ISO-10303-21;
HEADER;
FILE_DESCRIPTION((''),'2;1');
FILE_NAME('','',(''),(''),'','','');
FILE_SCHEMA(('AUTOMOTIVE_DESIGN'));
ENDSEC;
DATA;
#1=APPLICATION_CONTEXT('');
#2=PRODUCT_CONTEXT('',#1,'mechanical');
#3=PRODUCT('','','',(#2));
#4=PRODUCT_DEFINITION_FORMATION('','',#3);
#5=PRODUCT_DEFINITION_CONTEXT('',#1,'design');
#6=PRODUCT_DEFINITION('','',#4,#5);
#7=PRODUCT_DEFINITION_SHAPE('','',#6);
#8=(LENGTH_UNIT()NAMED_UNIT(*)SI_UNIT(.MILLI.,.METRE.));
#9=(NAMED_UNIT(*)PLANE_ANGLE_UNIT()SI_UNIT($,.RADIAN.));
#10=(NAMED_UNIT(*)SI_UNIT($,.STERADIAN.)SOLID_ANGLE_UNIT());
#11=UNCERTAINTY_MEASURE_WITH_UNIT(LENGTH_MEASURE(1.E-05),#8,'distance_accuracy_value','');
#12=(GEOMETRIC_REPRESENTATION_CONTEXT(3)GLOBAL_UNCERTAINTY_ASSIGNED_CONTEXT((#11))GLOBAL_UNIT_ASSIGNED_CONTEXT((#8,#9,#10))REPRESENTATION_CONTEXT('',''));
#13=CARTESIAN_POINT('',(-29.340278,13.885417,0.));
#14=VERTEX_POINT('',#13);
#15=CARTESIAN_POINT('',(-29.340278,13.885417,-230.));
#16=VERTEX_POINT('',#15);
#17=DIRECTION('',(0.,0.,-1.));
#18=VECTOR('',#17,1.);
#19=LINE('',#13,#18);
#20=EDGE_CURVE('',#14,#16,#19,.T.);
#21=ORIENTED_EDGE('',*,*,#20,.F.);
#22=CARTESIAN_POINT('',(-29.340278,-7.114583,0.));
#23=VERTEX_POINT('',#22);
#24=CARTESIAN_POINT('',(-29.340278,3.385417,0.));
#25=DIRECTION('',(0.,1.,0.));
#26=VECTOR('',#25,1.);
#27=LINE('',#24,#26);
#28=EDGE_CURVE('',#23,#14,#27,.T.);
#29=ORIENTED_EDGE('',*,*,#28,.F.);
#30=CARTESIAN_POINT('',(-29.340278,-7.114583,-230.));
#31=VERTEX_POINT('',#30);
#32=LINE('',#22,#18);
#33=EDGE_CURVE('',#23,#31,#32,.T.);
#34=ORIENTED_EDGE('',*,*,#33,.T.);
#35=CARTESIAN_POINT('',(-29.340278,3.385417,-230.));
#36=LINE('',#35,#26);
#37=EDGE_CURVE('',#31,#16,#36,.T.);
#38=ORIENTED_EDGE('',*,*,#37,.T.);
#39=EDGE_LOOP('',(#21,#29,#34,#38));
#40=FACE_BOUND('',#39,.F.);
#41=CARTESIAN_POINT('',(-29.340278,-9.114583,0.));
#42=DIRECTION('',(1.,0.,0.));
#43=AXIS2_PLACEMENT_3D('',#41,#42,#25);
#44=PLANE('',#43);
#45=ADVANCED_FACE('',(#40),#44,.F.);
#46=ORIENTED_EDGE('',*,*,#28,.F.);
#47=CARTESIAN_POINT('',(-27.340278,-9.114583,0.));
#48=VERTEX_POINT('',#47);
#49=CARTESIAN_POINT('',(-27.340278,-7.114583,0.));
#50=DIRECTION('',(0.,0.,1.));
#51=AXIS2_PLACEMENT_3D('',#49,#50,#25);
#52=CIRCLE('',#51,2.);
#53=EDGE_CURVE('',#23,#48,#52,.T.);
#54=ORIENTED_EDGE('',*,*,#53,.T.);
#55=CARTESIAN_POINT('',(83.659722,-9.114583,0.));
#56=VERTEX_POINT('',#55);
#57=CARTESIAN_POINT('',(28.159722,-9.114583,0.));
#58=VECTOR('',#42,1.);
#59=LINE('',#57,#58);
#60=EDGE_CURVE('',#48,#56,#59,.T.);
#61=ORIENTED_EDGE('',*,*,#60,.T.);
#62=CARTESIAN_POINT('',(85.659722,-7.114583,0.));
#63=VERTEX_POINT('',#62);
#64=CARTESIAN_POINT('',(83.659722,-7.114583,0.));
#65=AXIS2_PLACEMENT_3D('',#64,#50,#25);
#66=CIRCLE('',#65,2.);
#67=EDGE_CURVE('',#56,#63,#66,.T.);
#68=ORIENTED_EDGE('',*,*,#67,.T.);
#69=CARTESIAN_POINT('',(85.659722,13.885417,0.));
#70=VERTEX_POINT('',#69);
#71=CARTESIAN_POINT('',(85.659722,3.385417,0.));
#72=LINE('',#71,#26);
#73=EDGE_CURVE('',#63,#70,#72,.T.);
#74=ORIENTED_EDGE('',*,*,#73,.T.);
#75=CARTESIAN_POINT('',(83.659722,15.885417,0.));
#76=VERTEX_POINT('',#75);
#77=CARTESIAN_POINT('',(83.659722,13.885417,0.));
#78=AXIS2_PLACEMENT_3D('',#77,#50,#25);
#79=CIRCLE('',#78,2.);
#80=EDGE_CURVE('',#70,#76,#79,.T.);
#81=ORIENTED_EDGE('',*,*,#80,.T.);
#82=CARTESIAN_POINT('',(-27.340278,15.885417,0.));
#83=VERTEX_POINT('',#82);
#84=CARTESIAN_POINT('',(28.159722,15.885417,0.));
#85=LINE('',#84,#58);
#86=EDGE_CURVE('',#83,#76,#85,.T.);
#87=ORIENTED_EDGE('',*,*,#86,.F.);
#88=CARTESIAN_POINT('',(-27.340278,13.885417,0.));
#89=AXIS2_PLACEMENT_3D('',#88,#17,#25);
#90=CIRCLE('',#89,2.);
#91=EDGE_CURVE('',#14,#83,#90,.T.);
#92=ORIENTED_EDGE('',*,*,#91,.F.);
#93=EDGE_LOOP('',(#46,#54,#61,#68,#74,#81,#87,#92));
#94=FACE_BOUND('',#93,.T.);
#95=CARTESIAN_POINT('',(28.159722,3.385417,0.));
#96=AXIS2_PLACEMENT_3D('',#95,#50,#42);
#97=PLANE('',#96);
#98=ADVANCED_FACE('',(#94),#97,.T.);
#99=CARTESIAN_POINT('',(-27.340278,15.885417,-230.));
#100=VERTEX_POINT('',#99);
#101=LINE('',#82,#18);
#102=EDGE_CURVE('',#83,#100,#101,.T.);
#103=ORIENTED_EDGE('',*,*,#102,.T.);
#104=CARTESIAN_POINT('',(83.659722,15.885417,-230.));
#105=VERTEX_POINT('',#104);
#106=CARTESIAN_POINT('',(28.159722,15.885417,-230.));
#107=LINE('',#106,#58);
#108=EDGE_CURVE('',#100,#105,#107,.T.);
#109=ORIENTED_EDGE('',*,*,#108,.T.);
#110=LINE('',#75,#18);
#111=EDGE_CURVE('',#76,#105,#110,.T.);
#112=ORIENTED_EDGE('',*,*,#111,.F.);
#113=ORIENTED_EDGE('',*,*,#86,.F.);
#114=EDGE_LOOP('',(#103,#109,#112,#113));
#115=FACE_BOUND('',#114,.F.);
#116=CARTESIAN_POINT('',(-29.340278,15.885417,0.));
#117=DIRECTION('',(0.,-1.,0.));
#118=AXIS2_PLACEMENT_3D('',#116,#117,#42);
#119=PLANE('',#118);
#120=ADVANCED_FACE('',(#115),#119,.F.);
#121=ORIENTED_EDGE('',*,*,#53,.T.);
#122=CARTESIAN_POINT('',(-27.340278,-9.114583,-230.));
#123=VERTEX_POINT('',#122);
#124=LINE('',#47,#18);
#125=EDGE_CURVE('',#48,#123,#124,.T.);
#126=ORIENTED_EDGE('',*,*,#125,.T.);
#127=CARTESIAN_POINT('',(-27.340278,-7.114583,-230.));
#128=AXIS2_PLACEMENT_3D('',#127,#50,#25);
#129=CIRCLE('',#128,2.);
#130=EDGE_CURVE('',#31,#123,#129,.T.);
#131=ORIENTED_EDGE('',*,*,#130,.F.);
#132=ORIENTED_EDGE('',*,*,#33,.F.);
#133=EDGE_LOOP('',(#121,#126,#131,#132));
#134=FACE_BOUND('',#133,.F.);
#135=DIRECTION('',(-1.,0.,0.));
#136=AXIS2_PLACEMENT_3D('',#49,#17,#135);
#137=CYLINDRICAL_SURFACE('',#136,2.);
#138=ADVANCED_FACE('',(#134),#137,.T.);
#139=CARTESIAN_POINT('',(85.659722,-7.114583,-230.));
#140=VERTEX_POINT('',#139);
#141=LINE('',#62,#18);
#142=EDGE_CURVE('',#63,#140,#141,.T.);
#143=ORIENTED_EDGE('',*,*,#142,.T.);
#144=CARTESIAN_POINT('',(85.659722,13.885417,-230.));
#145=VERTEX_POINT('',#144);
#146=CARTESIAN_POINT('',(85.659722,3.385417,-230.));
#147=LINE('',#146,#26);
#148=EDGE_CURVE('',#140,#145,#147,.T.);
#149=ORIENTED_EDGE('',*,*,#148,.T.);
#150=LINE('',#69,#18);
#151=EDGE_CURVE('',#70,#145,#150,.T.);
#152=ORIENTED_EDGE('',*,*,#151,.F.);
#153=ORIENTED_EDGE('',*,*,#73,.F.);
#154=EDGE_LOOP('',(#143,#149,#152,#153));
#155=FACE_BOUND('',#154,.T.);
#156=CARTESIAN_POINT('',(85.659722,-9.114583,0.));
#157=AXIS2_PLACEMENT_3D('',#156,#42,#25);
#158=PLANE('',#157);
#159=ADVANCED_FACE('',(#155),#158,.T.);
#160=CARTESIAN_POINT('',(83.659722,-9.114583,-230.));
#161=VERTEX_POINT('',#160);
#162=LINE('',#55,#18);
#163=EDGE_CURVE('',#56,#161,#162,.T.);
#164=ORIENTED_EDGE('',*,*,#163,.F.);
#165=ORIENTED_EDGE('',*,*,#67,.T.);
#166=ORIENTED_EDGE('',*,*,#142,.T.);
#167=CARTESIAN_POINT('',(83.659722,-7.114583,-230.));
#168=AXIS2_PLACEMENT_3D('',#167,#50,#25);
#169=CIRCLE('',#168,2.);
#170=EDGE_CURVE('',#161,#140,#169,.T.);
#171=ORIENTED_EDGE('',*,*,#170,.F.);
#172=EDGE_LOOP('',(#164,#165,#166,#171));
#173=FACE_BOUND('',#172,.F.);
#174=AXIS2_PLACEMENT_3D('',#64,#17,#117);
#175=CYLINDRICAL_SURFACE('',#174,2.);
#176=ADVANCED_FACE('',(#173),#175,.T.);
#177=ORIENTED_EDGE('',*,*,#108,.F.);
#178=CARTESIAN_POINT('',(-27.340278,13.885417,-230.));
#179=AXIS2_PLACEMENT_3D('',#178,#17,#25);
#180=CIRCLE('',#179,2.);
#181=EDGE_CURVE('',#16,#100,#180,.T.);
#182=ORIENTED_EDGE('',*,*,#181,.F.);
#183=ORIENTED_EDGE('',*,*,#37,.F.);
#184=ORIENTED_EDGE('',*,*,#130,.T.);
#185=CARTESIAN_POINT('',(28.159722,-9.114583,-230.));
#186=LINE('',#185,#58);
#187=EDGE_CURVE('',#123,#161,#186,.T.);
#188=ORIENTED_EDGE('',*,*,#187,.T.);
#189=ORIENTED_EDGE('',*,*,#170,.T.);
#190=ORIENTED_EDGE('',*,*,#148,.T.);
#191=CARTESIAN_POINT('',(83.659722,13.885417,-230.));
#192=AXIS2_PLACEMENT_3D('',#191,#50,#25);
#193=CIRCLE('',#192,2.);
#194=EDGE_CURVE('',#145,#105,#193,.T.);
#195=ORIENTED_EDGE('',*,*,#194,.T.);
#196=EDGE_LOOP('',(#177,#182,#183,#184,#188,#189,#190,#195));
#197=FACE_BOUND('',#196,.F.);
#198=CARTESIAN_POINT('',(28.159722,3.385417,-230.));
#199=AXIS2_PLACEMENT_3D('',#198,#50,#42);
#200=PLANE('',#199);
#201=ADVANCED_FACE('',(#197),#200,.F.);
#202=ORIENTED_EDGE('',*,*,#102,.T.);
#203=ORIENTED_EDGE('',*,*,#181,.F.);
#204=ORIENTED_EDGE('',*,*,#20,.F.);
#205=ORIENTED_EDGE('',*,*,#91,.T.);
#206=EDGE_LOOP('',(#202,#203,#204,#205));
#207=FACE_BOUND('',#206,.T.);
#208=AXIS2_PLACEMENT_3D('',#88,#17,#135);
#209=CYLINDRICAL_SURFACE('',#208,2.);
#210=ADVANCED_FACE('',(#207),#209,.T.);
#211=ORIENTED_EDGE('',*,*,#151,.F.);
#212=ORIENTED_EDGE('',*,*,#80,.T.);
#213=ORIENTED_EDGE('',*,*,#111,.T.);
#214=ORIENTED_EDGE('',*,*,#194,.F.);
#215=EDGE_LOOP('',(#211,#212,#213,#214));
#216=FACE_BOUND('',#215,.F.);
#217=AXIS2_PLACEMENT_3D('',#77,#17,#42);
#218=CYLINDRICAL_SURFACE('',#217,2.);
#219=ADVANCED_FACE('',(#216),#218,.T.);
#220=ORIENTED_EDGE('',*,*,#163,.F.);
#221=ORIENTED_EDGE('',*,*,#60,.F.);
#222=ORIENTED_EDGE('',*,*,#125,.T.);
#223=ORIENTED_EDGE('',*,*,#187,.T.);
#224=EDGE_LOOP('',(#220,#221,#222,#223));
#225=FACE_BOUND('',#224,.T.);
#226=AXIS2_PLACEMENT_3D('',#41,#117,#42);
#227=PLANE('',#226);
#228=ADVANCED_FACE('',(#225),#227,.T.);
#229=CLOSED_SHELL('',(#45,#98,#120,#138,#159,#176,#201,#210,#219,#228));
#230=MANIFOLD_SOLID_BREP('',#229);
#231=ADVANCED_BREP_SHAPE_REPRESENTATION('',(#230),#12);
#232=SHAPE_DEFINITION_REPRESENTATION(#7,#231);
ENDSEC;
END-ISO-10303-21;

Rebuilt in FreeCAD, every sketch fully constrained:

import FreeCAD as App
import Part
import Sketcher
from FreeCAD import Vector


def edges_at(feature, points):
    """Names of the edges that pass closest to the given points."""
    edges = feature.Shape.Edges
    near = lambda p: min(range(len(edges)), key=lambda i: edges[i].distToShape(Part.Vertex(*p))[0])
    return sorted({f"Edge{near(p) + 1}" for p in points})

doc = App.newDocument("Part")
body = doc.addObject("PartDesign::Body", "Body")

sketch1 = body.newObject("Sketcher::SketchObject", "Sketch")
sketch1.AttachmentSupport = (doc.getObject("XY_Plane"), [""])
sketch1.MapMode = "FlatFace"
sketch1.addGeometry(Part.LineSegment(Vector(-29, 16, 0), Vector(-29, -9, 0)), False)
sketch1.addGeometry(Part.LineSegment(Vector(-29, -9, 0), Vector(86, -9, 0)), False)
sketch1.addGeometry(Part.LineSegment(Vector(86, -9, 0), Vector(86, 16, 0)), False)
sketch1.addGeometry(Part.LineSegment(Vector(86, 16, 0), Vector(-29, 16, 0)), False)
sketch1.addConstraint(Sketcher.Constraint("Coincident", 0, 2, 1, 1))
sketch1.addConstraint(Sketcher.Constraint("Coincident", 1, 2, 2, 1))
sketch1.addConstraint(Sketcher.Constraint("Coincident", 2, 2, 3, 1))
sketch1.addConstraint(Sketcher.Constraint("Coincident", 3, 2, 0, 1))
sketch1.addConstraint(Sketcher.Constraint("Vertical", 0))
sketch1.addConstraint(Sketcher.Constraint("Horizontal", 1))
sketch1.addConstraint(Sketcher.Constraint("Vertical", 2))
sketch1.addConstraint(Sketcher.Constraint("Horizontal", 3))
sketch1.addConstraint(Sketcher.Constraint("DistanceX", 1, 1, 1, 2, 115.0))
sketch1.addConstraint(Sketcher.Constraint("DistanceY", 0, 2, 0, 1, 25.0))
sketch1.addConstraint(Sketcher.Constraint("DistanceX", 0, 2, -1, 1, 29.340278))
sketch1.addConstraint(Sketcher.Constraint("DistanceY", 0, 2, -1, 1, 9.114583))
pad1 = body.newObject("PartDesign::Pad", "Pad")
pad1.Profile = sketch1
pad1.Length = 230
pad1.Reversed = True
doc.recompute()

fillet = body.newObject("PartDesign::Fillet", "Fillet")
fillet.Base = (pad1, edges_at(pad1, [
    (-29.34, 15.885, -115),
    (85.66, 15.885, -115),
    (85.66, -9.115, -115),
    (-29.34, -9.115, -115),
]))
fillet.Radius = 2

doc.recompute()
